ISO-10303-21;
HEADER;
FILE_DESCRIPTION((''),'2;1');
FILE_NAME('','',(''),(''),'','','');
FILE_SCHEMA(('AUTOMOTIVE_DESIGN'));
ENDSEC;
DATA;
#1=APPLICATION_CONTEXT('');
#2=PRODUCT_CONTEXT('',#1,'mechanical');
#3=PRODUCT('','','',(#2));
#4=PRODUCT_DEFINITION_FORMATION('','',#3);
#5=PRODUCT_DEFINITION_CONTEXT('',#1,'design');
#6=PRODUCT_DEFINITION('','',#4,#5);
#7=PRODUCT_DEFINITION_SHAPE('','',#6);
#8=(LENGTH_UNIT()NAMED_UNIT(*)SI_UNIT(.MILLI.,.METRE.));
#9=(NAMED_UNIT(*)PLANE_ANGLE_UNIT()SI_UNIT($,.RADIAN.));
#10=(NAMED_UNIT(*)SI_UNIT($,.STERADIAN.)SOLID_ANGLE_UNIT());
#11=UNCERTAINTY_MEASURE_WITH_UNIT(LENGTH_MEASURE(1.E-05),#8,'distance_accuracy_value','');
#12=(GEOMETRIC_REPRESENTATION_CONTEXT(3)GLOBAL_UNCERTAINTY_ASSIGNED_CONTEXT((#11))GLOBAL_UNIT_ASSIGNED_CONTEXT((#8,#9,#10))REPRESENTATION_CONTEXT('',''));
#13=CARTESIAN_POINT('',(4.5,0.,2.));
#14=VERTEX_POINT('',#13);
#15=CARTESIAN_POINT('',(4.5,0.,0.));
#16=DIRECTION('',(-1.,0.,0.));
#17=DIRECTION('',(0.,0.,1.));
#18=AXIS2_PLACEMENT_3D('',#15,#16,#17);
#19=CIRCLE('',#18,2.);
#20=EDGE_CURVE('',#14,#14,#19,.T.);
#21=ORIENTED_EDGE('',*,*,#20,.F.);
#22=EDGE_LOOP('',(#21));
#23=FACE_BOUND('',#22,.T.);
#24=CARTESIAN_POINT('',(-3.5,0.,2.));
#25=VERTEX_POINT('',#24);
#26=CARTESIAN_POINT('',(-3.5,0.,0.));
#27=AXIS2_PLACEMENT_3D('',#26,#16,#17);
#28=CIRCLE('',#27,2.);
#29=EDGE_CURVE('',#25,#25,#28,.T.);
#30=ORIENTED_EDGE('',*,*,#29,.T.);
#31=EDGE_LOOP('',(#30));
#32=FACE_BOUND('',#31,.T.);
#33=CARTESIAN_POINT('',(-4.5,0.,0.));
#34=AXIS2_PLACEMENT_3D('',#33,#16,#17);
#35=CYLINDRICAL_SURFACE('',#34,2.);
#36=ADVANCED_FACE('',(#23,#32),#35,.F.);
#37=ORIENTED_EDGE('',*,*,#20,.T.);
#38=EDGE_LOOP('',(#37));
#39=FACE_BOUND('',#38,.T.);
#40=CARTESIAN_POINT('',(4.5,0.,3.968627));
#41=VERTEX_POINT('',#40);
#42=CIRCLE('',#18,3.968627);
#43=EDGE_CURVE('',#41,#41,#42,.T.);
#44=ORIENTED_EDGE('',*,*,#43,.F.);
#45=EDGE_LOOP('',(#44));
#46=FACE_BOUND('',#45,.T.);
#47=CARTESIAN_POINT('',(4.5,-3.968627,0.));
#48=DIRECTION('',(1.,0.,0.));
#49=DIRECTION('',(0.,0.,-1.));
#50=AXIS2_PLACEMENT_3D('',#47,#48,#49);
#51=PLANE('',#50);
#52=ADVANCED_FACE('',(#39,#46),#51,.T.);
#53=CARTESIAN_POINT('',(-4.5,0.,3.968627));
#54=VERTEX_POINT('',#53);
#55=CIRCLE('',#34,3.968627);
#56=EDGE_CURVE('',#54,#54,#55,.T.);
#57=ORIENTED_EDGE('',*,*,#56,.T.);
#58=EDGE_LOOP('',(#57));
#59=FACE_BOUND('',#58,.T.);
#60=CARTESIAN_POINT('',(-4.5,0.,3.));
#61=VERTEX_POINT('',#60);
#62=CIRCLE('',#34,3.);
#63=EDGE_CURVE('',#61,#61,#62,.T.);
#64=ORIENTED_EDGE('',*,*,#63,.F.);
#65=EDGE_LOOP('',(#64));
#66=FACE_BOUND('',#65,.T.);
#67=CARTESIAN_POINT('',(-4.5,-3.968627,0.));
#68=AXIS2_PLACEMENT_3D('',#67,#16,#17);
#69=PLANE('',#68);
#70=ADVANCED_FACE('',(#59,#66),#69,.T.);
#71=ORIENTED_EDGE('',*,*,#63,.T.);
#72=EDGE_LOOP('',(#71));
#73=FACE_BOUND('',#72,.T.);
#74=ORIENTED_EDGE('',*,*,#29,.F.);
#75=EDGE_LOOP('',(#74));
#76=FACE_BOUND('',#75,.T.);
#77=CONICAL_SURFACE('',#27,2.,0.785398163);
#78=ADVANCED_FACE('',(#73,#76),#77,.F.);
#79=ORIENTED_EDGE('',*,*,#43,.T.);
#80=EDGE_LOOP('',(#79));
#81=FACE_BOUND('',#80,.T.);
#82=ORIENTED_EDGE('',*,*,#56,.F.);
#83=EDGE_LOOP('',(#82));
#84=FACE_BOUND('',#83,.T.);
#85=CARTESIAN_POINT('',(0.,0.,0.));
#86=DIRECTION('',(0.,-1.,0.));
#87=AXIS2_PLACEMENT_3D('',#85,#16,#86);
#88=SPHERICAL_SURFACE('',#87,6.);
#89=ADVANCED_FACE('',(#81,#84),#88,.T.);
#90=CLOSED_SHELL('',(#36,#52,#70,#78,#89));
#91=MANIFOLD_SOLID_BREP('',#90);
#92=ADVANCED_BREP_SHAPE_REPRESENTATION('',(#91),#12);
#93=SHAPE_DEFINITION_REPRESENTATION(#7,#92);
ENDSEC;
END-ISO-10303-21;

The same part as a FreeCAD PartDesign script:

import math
import FreeCAD as App
import Part
import Sketcher
from FreeCAD import Vector
Q = App.Units.Quantity

doc = App.newDocument("Part")
body = doc.addObject("PartDesign::Body", "Body")

sketch1 = doc.addObject("Sketcher::SketchObject", "Sketch")
body.addObject(sketch1)
sketch1.AttachmentSupport = (doc.XY_Plane, [""])
sketch1.MapMode = "FlatFace"
sketch1.addGeometry([
    Part.LineSegment(Vector(4.5, 0, 0), Vector(-4.5, 0, 0)),
    Part.LineSegment(Vector(-4.5, 0, 0), Vector(-4.5, -4, 0)),
    Part.ArcOfCircle(Part.Circle(Vector(0, 0, 0), Vector(0, 0, 1), 6), math.radians(-139), math.radians(-41)),
    Part.LineSegment(Vector(4.5, -4, 0), Vector(4.5, 0, 0)),
], False)
sketch1.addConstraint([
    Sketcher.Constraint("Coincident", 0, 2, 1, 1),
    Sketcher.Constraint("Coincident", 1, 2, 2, 1),
    Sketcher.Constraint("Coincident", 2, 2, 3, 1),
    Sketcher.Constraint("Coincident", 3, 2, 0, 1),
    Sketcher.Constraint("Horizontal", 0),
    Sketcher.Constraint("Vertical", 1),
    Sketcher.Constraint("Vertical", 3),
    Sketcher.Constraint("Coincident", 2, 3, -1, 1),
    Sketcher.Constraint("Symmetric", 0, 2, 3, 2, -1, 1),
    Sketcher.Constraint("Radius", 2, Q("6 mm")),
    Sketcher.Constraint("DistanceX", 0, 2, 0, 1, Q("9 mm")),
])
revolution = doc.addObject("PartDesign::Revolution", "Revolution")
body.addObject(revolution)
revolution.Profile = sketch1
revolution.ReferenceAxis = (sketch1, ["H_Axis"])
revolution.Angle = 360

sketch2 = doc.addObject("Sketcher::SketchObject", "Sketch001")
body.addObject(sketch2)
sketch2.AttachmentSupport = (doc.XZ_Plane, [""])
sketch2.MapMode = "FlatFace"
sketch2.addGeometry([
    Part.LineSegment(Vector(4.5, -2, 0), Vector(-3.5, -2, 0)),
    Part.LineSegment(Vector(-3.5, -2, 0), Vector(-4.5, -3, 0)),
    Part.LineSegment(Vector(-4.5, -3, 0), Vector(-4.5, 0, 0)),
    Part.LineSegment(Vector(-4.5, 0, 0), Vector(4.5, 0, 0)),
    Part.LineSegment(Vector(4.5, 0, 0), Vector(4.5, -2, 0)),
], False)
sketch2.addConstraint([
    Sketcher.Constraint("Coincident", 0, 2, 1, 1),
    Sketcher.Constraint("Coincident", 1, 2, 2, 1),
    Sketcher.Constraint("Coincident", 2, 2, 3, 1),
    Sketcher.Constraint("Coincident", 3, 2, 4, 1),
    Sketcher.Constraint("Coincident", 4, 2, 0, 1),
    Sketcher.Constraint("Horizontal", 0),
    Sketcher.Constraint("Vertical", 2),
    Sketcher.Constraint("Horizontal", 3),
    Sketcher.Constraint("Vertical", 4),
    Sketcher.Constraint("Symmetric", 2, 2, 3, 2, -1, 1),
    Sketcher.Constraint("DistanceX", 0, 2, 0, 1, Q("8 mm")),
    Sketcher.Constraint("DistanceX", 3, 1, 3, 2, Q("9 mm")),
    Sketcher.Constraint("DistanceY", 2, 1, 2, 2, Q("3 mm")),
    Sketcher.Constraint("DistanceY", 4, 2, 4, 1, Q("2 mm")),
])
groove = doc.addObject("PartDesign::Groove", "Groove")
body.addObject(groove)
groove.Profile = sketch2
groove.ReferenceAxis = (sketch2, ["H_Axis"])
groove.Angle = 360

doc.recompute()
